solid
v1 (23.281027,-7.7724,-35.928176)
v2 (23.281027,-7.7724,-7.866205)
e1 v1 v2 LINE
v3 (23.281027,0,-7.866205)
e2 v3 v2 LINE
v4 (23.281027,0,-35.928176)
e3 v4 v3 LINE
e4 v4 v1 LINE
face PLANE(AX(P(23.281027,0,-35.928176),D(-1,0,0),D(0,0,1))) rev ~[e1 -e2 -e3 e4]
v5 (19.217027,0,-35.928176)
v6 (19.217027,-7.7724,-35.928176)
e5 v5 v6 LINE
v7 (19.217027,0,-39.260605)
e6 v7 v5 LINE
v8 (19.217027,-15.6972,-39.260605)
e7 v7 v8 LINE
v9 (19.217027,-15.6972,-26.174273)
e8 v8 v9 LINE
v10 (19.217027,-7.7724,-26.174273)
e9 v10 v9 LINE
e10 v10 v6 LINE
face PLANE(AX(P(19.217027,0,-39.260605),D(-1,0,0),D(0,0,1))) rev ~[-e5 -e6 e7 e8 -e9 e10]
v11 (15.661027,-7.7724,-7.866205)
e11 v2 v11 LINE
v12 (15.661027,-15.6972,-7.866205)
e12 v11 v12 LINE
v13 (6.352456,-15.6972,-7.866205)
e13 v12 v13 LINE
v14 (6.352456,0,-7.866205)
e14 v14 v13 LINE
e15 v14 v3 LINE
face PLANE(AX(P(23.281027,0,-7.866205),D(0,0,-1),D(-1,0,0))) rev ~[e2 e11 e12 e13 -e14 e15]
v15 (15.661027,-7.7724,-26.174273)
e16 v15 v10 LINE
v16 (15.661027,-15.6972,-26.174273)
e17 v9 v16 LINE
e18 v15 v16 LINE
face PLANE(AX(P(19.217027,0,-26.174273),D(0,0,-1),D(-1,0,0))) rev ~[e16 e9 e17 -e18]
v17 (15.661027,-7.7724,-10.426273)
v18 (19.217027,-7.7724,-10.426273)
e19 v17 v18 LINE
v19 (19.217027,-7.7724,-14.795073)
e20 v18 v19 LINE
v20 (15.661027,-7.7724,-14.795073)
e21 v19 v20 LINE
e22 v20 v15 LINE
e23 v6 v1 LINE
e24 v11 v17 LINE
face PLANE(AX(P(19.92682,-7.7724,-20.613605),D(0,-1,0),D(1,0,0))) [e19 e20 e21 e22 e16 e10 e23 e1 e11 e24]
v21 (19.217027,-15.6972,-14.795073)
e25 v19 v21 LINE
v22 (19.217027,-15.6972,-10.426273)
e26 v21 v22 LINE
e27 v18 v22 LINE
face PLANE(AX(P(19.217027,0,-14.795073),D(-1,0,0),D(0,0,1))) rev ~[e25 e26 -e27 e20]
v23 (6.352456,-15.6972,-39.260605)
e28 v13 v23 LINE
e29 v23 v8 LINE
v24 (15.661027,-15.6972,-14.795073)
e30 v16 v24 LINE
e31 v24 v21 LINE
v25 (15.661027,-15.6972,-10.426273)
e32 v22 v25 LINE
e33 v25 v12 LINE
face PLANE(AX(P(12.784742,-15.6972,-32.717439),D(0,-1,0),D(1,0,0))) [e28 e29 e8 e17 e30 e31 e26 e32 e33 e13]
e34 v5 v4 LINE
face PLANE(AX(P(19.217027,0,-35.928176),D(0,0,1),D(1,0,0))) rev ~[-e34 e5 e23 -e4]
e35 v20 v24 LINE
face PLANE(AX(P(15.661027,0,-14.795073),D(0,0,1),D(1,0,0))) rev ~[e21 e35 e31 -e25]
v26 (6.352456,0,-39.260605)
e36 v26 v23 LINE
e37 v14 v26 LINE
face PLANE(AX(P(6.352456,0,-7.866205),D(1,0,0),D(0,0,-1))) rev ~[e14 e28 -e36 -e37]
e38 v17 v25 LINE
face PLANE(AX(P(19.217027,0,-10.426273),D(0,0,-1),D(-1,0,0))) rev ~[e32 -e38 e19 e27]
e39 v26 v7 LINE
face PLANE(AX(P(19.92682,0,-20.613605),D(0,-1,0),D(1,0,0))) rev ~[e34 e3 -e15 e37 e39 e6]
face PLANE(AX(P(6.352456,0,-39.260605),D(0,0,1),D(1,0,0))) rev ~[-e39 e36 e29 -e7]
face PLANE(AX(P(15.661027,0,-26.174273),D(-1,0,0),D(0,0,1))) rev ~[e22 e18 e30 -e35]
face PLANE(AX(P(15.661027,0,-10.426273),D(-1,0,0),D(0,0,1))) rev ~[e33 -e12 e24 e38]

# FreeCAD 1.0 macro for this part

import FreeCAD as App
import Part
import Sketcher

V = App.Vector
Q = App.Units.Quantity


def add_polygon(sketch, points):
    """Adds a closed chain of lines whose ends are joined by coincident constraints."""
    first, n = sketch.GeometryCount, len(points)
    for a, b in zip(points, points[1:] + points[:1]):
        sketch.addGeometry(Part.LineSegment(App.Vector(*a, 0), App.Vector(*b, 0)), False)
    for i in range(n):
        sketch.addConstraint(Sketcher.Constraint("Coincident", first + i, 2, first + (i + 1) % n, 1))

doc = App.newDocument("Part")
body = doc.addObject("PartDesign::Body", "Body")

# Sketch on XZ plane
sketch1 = body.newObject("Sketcher::SketchObject", "Sketch")
sketch1.AttachmentSupport = (doc.getObject("XZ_Plane"), [""])
sketch1.MapMode = "FlatFace"
add_polygon(sketch1, [(6.4, -39.3), (19.2, -39.3), (19.2, -26.2), (15.7, -26.2), (15.7, -14.8), (19.2, -14.8), (19.2, -10.4), (15.7, -10.4), (15.7, -7.9), (6.4, -7.9)])  # lines 0-9
sketch1.addConstraint([
    Sketcher.Constraint("Horizontal", 0),
    Sketcher.Constraint("Vertical", 1),
    Sketcher.Constraint("Horizontal", 2),
    Sketcher.Constraint("Vertical", 3),
    Sketcher.Constraint("Horizontal", 4),
    Sketcher.Constraint("Vertical", 5),
    Sketcher.Constraint("Horizontal", 6),
    Sketcher.Constraint("Vertical", 7),
    Sketcher.Constraint("Horizontal", 8),
    Sketcher.Constraint("Vertical", 9),
    Sketcher.Constraint("Vertical", 1, 2, 4, 2),
    Sketcher.Constraint("Vertical", 3, 2, 6, 2),
    Sketcher.Constraint("DistanceX", 2, 2, 2, 1, Q("0.14 in")),
    Sketcher.Constraint("DistanceY", 3, 1, 3, 2, Q("0.448 in")),
    Sketcher.Constraint("DistanceY", 5, 1, 5, 2, Q("0.172 in")),
    Sketcher.Constraint("DistanceY", 9, 2, 9, 1, Q("1.236 in")),
    Sketcher.Constraint("DistanceX", 0, 1, 0, 2, Q("12.864571 mm")),
    Sketcher.Constraint("DistanceY", 1, 1, 1, 2, Q("13.086332 mm")),
    Sketcher.Constraint("DistanceX", -1, 1, 0, 2, Q("19.217027 mm")),
    Sketcher.Constraint("DistanceY", 0, 2, -1, 1, Q("39.260605 mm")),
])
pad1 = body.newObject("PartDesign::Pad", "Pad")
pad1.Profile = sketch1
pad1.Length = Q("0.618 in")

# Sketch on XZ plane
sketch2 = body.newObject("Sketcher::SketchObject", "Sketch001")
sketch2.AttachmentSupport = (doc.getObject("XZ_Plane"), [""])
sketch2.MapMode = "FlatFace"
add_polygon(sketch2, [(19.2, -26.2), (19.2, -35.9), (23.3, -35.9), (23.3, -7.9), (15.7, -7.9), (15.7, -10.4), (19.2, -10.4), (19.2, -14.8), (15.7, -14.8), (15.7, -26.2)])  # lines 0-9
sketch2.addConstraint([
    Sketcher.Constraint("Vertical", 0),
    Sketcher.Constraint("Horizontal", 1),
    Sketcher.Constraint("Vertical", 2),
    Sketcher.Constraint("Horizontal", 3),
    Sketcher.Constraint("Vertical", 4),
    Sketcher.Constraint("Horizontal", 5),
    Sketcher.Constraint("Vertical", 6),
    Sketcher.Constraint("Horizontal", 7),
    Sketcher.Constraint("Vertical", 8),
    Sketcher.Constraint("Horizontal", 9),
    Sketcher.Constraint("Vertical", 0, 2, 5, 2),
    Sketcher.Constraint("Vertical", 4, 2, 7, 2),
    Sketcher.Constraint("DistanceX", 3, 2, 3, 1, Q("0.3 in")),
    Sketcher.Constraint("DistanceX", 1, 1, 1, 2, Q("0.16 in")),
    Sketcher.Constraint("DistanceY", 6, 2, 6, 1, Q("0.172 in")),
    Sketcher.Constraint("DistanceY", 8, 2, 8, 1, Q("0.448 in")),
    Sketcher.Constraint("DistanceY", 2, 1, 2, 2, Q("28.061971 mm")),
    Sketcher.Constraint("DistanceY", 4, 2, 4, 1, Q("2.560068 mm")),
    Sketcher.Constraint("DistanceX", -1, 1, 0, 2, Q("19.217027 mm")),
    Sketcher.Constraint("DistanceY", 0, 2, -1, 1, Q("35.928176 mm")),
])
pad2 = body.newObject("PartDesign::Pad", "Pad001")
pad2.Profile = sketch2
pad2.Length = Q("0.306 in")

doc.recompute()
